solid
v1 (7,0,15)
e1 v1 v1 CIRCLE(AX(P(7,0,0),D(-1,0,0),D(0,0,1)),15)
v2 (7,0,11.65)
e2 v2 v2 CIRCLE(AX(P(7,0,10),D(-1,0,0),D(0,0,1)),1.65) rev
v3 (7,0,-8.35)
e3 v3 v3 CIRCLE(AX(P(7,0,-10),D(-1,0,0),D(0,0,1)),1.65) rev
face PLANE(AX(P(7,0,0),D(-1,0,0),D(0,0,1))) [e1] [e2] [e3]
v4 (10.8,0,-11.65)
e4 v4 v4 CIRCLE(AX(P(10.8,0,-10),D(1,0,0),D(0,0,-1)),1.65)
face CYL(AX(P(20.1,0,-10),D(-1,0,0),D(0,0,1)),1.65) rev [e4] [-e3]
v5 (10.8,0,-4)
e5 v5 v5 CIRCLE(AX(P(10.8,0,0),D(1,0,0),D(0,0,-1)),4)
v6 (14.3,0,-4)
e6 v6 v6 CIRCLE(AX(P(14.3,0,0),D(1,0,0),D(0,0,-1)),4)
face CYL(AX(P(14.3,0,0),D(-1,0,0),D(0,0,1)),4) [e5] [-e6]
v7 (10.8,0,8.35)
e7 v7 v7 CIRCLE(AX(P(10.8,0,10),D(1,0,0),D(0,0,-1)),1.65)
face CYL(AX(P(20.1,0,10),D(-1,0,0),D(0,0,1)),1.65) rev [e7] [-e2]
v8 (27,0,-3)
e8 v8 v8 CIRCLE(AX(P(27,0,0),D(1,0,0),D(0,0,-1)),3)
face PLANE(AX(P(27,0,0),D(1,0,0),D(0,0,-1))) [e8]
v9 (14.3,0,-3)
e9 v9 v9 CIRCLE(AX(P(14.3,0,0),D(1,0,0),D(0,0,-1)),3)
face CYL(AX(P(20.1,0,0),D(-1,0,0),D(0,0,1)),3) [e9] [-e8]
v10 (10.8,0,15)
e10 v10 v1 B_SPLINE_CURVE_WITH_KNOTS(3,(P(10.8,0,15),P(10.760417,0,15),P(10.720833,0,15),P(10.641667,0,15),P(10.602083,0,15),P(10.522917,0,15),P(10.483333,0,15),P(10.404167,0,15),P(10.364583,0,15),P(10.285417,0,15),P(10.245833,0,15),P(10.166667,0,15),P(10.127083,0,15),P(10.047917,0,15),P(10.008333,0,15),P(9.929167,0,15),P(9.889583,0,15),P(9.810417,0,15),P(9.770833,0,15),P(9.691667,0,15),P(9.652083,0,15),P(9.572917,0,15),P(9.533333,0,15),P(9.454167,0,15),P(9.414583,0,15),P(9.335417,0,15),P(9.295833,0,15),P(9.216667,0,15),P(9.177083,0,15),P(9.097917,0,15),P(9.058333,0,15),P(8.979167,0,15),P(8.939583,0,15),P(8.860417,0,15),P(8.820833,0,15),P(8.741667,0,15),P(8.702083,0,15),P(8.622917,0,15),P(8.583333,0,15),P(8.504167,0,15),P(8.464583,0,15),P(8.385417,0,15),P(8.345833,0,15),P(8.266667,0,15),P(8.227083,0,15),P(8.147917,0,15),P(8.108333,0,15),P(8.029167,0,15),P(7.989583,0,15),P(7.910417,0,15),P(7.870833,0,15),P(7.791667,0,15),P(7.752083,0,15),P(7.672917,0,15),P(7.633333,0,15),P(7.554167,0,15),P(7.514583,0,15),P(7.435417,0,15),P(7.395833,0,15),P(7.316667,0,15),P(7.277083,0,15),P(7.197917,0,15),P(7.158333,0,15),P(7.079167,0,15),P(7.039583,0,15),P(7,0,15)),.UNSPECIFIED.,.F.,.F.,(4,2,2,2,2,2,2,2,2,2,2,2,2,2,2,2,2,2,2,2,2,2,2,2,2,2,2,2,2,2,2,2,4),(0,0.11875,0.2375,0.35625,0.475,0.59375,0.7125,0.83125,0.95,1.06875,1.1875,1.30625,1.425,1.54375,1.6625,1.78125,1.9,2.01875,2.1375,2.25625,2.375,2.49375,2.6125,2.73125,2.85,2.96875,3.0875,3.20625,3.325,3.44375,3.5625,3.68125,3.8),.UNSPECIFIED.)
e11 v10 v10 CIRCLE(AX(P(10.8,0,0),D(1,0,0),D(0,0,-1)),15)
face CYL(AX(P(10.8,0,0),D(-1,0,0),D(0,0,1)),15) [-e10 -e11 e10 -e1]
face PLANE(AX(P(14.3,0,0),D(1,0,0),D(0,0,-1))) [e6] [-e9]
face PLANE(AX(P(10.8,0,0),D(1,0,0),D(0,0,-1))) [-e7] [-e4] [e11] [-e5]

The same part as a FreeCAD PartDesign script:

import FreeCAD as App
import Part
import Sketcher

V = App.Vector
Q = App.Units.Quantity

doc = App.newDocument("Part")
body = doc.addObject("PartDesign::Body", "Body")

sketch1 = body.newObject("Sketcher::SketchObject", "Sketch")
sketch1.AttachmentSupport = (doc.getObject("YZ_Plane"), [""])
sketch1.MapMode = "FlatFace"
sketch1.addGeometry(Part.Circle(V(0, 0, 0), V(0, 0, 1), 15), False)
sketch1.addConstraint(Sketcher.Constraint("Coincident", 0, 3, -1, 1))
sketch1.addConstraint(Sketcher.Constraint("Diameter", 0, Q("30 mm")))
pad1 = body.newObject("PartDesign::Pad", "Pad")
pad1.Profile = sketch1
pad1.Length = 10.8

sketch2 = body.newObject("Sketcher::SketchObject", "Sketch001")
sketch2.AttachmentSupport = (doc.getObject("YZ_Plane"), [""])
sketch2.MapMode = "FlatFace"
sketch2.AttachmentOffset = App.Placement(V(0, 0, 10.8), App.Rotation())
sketch2.addGeometry(Part.Circle(V(0, 0, 0), V(0, 0, 1), 4), False)
sketch2.addConstraint(Sketcher.Constraint("Coincident", 0, 3, -1, 1))
sketch2.addConstraint(Sketcher.Constraint("Diameter", 0, Q("8 mm")))
pad2 = body.newObject("PartDesign::Pad", "Pad001")
pad2.Profile = sketch2
pad2.Length = 3.5

sketch3 = body.newObject("Sketcher::SketchObject", "Sketch002")
sketch3.AttachmentSupport = (doc.getObject("YZ_Plane"), [""])
sketch3.MapMode = "FlatFace"
sketch3.AttachmentOffset = App.Placement(V(0, 0, 14.3), App.Rotation())
sketch3.addGeometry(Part.Circle(V(0, 0, 0), V(0, 0, 1), 3), False)
sketch3.addConstraint(Sketcher.Constraint("Coincident", 0, 3, -1, 1))
sketch3.addConstraint(Sketcher.Constraint("Diameter", 0, Q("6 mm")))
pad3 = body.newObject("PartDesign::Pad", "Pad002")
pad3.Profile = sketch3
pad3.Length = 5.8

sketch4 = body.newObject("Sketcher::SketchObject", "Sketch003")
sketch4.AttachmentSupport = (doc.getObject("YZ_Plane"), [""])
sketch4.MapMode = "FlatFace"
sketch4.addGeometry(Part.Circle(V(0, 10, 0), V(0, 0, 1), 1.6), False)
sketch4.addGeometry(Part.Circle(V(0, -10, 0), V(0, 0, 1), 1.6), False)
sketch4.addConstraint(Sketcher.Constraint("Equal", 0, 1))
sketch4.addConstraint(Sketcher.Constraint("Symmetric", 0, 3, 1, 3, -1, 1))
sketch4.addConstraint(Sketcher.Constraint("PointOnObject", 0, 3, -2))
sketch4.addConstraint(Sketcher.Constraint("Diameter", 0, Q("3.3 mm")))
sketch4.addConstraint(Sketcher.Constraint("DistanceY", -1, 1, 0, 3, Q("10 mm")))
pocket1 = body.newObject("PartDesign::Pocket", "Pocket")
pocket1.Profile = sketch4
pocket1.Type = "ThroughAll"
pocket1.Reversed = True

sketch5 = body.newObject("Sketcher::SketchObject", "Sketch004")
sketch5.AttachmentSupport = (doc.getObject("YZ_Plane"), [""])
sketch5.MapMode = "FlatFace"
sketch5.AttachmentOffset = App.Placement(V(0, 0, 20.1), App.Rotation())
sketch5.addGeometry(Part.Circle(V(0, 0, 0), V(0, 0, 1), 3), False)
sketch5.addConstraint(Sketcher.Constraint("Coincident", 0, 3, -1, 1))
sketch5.addConstraint(Sketcher.Constraint("Diameter", 0, Q("6 mm")))
pad4 = body.newObject("PartDesign::Pad", "Pad003")
pad4.Profile = sketch5
pad4.Length = 6.9

sketch6 = body.newObject("Sketcher::SketchObject", "Sketch005")
sketch6.AttachmentSupport = (doc.getObject("YZ_Plane"), [""])
sketch6.MapMode = "FlatFace"
sketch6.addGeometry(Part.Circle(V(0, 0, 0), V(0, 0, 1), 15), False)
sketch6.addConstraint(Sketcher.Constraint("Coincident", 0, 3, -1, 1))
sketch6.addConstraint(Sketcher.Constraint("Diameter", 0, Q("30 mm")))
pocket2 = body.newObject("PartDesign::Pocket", "Pocket001")
pocket2.Profile = sketch6
pocket2.Length = 7
pocket2.Reversed = True

doc.recompute()
